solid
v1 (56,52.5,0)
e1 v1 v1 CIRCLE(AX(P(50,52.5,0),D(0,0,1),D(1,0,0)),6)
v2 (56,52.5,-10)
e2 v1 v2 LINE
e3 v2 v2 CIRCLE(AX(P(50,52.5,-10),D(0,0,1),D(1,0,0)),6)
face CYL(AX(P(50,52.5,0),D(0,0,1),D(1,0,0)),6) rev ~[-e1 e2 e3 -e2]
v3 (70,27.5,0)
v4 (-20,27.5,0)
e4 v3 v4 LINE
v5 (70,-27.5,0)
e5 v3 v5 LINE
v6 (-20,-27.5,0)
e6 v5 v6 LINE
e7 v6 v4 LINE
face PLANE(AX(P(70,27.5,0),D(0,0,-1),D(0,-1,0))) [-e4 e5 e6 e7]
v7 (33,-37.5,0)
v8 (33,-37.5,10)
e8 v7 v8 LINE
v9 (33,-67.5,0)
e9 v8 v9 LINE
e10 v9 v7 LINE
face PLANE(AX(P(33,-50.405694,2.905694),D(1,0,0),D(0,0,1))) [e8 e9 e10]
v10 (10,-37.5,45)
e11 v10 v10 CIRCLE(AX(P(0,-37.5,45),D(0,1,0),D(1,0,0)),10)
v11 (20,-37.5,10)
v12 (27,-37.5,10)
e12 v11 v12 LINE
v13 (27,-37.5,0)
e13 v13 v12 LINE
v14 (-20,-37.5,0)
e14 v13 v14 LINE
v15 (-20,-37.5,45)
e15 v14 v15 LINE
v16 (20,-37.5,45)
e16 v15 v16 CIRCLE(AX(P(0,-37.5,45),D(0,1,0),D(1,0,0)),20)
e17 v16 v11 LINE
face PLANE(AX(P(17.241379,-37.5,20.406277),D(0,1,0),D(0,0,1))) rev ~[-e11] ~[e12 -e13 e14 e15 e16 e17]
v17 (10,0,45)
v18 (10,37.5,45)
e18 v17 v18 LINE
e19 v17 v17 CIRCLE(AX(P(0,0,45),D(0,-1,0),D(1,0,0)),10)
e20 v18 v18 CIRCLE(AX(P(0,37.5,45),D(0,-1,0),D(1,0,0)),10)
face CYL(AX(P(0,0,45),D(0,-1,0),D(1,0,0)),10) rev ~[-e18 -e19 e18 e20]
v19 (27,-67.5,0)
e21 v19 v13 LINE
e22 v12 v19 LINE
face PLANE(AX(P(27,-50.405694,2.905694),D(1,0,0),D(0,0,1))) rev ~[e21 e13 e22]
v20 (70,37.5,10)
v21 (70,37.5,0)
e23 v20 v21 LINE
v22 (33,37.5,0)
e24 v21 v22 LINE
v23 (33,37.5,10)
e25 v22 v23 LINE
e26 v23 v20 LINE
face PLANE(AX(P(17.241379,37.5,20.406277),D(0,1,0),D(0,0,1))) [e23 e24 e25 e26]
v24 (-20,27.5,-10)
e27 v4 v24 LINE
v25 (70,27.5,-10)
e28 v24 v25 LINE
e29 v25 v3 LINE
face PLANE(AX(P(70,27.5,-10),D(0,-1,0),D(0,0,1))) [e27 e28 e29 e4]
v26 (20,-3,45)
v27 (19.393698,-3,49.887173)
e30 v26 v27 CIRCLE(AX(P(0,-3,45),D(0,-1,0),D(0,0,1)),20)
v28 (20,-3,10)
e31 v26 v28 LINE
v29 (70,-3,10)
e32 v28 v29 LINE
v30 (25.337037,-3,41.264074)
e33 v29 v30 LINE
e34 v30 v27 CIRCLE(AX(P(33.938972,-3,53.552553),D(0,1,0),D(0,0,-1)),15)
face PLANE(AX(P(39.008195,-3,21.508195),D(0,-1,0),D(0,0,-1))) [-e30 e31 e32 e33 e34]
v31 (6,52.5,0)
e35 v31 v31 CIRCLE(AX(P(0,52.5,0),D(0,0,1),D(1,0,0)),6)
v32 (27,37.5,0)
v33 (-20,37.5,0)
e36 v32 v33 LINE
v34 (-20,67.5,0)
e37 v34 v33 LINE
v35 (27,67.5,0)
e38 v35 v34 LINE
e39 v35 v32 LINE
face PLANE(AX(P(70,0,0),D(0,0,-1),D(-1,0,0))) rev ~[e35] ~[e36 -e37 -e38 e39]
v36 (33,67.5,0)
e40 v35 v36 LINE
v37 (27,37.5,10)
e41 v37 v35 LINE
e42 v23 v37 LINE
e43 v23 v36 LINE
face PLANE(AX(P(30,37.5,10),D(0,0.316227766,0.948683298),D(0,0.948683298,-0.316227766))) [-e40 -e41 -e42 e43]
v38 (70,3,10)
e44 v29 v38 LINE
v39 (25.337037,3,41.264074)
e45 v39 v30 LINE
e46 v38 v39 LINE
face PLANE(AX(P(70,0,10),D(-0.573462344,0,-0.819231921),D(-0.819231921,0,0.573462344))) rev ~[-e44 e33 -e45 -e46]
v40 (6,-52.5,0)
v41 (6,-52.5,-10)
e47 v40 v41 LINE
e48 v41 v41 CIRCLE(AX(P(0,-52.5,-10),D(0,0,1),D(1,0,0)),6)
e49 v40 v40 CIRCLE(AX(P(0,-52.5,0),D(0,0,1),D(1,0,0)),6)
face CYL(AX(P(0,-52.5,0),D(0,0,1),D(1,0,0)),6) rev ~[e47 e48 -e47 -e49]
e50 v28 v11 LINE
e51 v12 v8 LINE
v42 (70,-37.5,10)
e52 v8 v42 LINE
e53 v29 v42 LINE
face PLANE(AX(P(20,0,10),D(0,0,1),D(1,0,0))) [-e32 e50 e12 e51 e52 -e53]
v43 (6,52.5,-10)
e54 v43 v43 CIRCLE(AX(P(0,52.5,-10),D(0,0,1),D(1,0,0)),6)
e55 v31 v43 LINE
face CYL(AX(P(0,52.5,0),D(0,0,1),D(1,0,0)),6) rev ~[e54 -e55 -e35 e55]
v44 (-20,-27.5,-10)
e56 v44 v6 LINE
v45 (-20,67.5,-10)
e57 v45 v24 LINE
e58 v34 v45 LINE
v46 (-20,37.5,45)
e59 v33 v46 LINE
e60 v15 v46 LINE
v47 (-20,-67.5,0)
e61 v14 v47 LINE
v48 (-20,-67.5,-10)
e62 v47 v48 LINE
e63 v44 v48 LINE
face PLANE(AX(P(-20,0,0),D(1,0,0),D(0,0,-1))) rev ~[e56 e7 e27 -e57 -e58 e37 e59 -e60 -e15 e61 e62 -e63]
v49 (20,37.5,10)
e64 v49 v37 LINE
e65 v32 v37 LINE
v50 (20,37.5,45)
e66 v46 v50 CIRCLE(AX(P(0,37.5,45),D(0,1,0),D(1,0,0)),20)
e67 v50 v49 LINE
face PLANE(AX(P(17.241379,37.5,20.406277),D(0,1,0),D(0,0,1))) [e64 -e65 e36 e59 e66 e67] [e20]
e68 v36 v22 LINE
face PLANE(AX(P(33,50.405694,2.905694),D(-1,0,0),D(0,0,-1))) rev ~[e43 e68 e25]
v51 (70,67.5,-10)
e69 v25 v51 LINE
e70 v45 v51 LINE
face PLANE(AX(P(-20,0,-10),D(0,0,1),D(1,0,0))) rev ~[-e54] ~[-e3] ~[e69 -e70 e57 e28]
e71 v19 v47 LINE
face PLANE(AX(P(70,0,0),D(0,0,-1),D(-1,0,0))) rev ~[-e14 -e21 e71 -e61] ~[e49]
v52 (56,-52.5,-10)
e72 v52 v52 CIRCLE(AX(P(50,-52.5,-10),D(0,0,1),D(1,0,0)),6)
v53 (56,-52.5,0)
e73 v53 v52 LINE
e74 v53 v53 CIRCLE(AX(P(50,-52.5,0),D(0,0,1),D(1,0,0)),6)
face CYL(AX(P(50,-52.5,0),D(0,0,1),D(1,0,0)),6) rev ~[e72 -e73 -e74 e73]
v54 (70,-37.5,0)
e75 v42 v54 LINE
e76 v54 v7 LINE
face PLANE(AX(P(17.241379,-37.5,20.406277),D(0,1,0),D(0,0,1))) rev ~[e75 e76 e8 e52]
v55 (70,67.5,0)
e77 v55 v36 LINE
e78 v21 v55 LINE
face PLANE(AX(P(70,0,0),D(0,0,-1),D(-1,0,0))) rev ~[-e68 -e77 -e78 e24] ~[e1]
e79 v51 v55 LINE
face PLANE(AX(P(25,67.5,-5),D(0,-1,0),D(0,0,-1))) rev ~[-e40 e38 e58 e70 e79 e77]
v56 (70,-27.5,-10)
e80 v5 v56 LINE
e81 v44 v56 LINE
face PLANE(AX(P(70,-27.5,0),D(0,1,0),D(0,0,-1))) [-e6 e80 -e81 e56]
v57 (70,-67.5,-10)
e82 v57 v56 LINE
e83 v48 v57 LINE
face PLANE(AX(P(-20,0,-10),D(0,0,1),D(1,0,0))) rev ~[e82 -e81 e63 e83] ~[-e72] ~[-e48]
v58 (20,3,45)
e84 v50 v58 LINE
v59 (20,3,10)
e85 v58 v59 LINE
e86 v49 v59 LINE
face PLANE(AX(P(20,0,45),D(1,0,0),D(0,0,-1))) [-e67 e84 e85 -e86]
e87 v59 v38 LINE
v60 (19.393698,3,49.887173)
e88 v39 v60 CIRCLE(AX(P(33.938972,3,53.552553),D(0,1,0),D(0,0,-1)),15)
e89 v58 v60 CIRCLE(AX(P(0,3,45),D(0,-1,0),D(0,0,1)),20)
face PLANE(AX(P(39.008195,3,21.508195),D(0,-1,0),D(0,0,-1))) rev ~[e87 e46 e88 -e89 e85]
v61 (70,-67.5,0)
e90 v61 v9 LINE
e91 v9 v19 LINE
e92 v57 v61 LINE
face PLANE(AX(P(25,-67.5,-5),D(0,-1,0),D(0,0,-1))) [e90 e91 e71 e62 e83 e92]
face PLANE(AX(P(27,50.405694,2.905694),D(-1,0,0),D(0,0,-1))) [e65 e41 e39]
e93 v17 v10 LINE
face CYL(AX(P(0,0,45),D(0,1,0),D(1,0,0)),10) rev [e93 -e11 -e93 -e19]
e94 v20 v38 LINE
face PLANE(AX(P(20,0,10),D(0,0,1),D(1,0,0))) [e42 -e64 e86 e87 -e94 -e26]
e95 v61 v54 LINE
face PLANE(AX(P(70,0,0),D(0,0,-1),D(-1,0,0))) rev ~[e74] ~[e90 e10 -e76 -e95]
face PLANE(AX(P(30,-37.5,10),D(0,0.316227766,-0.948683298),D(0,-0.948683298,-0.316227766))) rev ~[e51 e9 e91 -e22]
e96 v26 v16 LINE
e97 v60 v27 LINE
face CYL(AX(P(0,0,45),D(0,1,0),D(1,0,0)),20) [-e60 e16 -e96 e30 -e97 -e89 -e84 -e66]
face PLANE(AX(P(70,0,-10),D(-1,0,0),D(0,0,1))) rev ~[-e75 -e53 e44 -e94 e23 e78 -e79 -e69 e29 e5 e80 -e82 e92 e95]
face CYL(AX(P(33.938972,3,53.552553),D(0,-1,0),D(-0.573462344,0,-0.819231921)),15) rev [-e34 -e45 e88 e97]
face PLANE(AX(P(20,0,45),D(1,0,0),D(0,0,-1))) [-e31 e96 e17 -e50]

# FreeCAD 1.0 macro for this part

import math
import FreeCAD as App
import Part
import Sketcher
Q = App.Units.Quantity


def edges_at(feature, points):
    """Names of the edges that pass closest to the given points."""
    edges = feature.Shape.Edges
    near = lambda p: min(range(len(edges)), key=lambda i: edges[i].distToShape(Part.Vertex(*p))[0])
    return sorted({f"Edge{near(p) + 1}" for p in points})

doc = App.newDocument("Part")
body = doc.addObject("PartDesign::Body", "Body")

# Sketch on XZ plane
sketch1 = body.newObject("Sketcher::SketchObject", "Sketch")
sketch1.AttachmentSupport = (doc.getObject("XZ_Plane"), [""])
sketch1.MapMode = "FlatFace"
sketch1.addGeometry([
    Part.LineSegment(App.Vector(70, -10, 0), App.Vector(70, 0, 0)),
    Part.LineSegment(App.Vector(70, 0, 0), App.Vector(-20, 0, 0)),
    Part.LineSegment(App.Vector(-20, 0, 0), App.Vector(-20, -10, 0)),
    Part.LineSegment(App.Vector(-20, -10, 0), App.Vector(70, -10, 0)),
], False)
sketch1.addConstraint([
    Sketcher.Constraint("Coincident", 0, 2, 1, 1),
    Sketcher.Constraint("Coincident", 1, 2, 2, 1),
    Sketcher.Constraint("Coincident", 2, 2, 3, 1),
    Sketcher.Constraint("Coincident", 3, 2, 0, 1),
    Sketcher.Constraint("Vertical", 0),
    Sketcher.Constraint("Horizontal", 1),
    Sketcher.Constraint("Vertical", 2),
    Sketcher.Constraint("Horizontal", 3),
    Sketcher.Constraint("PointOnObject", 0, 2, -1),
    Sketcher.Constraint("DistanceX", 1, 2, 1, 1, Q("90 mm")),
    Sketcher.Constraint("DistanceY", 0, 1, 0, 2, Q("10 mm")),
    Sketcher.Constraint("DistanceX", -1, 1, 0, 2, Q("70 mm")),
])
pad1 = body.newObject("PartDesign::Pad", "Pad")
pad1.Profile = sketch1
pad1.Length = 135
pad1.Midplane = True

# Sketch on XZ plane
sketch2 = body.newObject("Sketcher::SketchObject", "Sketch001")
sketch2.AttachmentSupport = (doc.getObject("XZ_Plane"), [""])
sketch2.MapMode = "FlatFace"
sketch2.addGeometry([
    Part.LineSegment(App.Vector(70, 0, 0), App.Vector(70, 10, 0)),  # 0
    Part.LineSegment(App.Vector(70, 10, 0), App.Vector(20, 10, 0)),  # 1
    Part.LineSegment(App.Vector(20, 10, 0), App.Vector(20, 45, 0)),  # 2
    Part.ArcOfCircle(Part.Circle(App.Vector(0, 45, 0), App.Vector(0, 0, 1), 20), math.radians(0), math.radians(180)),  # 3
    Part.LineSegment(App.Vector(-20, 45, 0), App.Vector(-20, 0, 0)),  # 4
    Part.LineSegment(App.Vector(-20, 0, 0), App.Vector(70, 0, 0)),  # 5
], False)
sketch2.addConstraint([
    Sketcher.Constraint("Coincident", 0, 2, 1, 1),
    Sketcher.Constraint("Coincident", 1, 2, 2, 1),
    Sketcher.Constraint("Tangent", 2, 2, 3, 1),
    Sketcher.Constraint("Tangent", 3, 2, 4, 1),
    Sketcher.Constraint("Coincident", 4, 2, 5, 1),
    Sketcher.Constraint("Coincident", 5, 2, 0, 1),
    Sketcher.Constraint("Vertical", 0),
    Sketcher.Constraint("Horizontal", 1),
    Sketcher.Constraint("Vertical", 2),
    Sketcher.Constraint("Vertical", 4),
    Sketcher.Constraint("Horizontal", 5),
    Sketcher.Constraint("PointOnObject", 3, 3, -2),
    Sketcher.Constraint("PointOnObject", 4, 2, -1),
    Sketcher.Constraint("Radius", 3, Q("20 mm")),
    Sketcher.Constraint("DistanceX", 1, 2, 1, 1, Q("50 mm")),
    Sketcher.Constraint("DistanceY", 0, 1, 0, 2, Q("10 mm")),
    Sketcher.Constraint("DistanceY", 2, 1, 2, 2, Q("35 mm")),
])
pad2 = body.newObject("PartDesign::Pad", "Pad001")
pad2.Profile = sketch2
pad2.Length = 75
pad2.Midplane = True

# Sketch on XZ plane
sketch3 = body.newObject("Sketcher::SketchObject", "Sketch002")
sketch3.AttachmentSupport = (doc.getObject("XZ_Plane"), [""])
sketch3.MapMode = "FlatFace"
sketch3.addGeometry(Part.Circle(App.Vector(0, 45, 0), App.Vector(0, 0, 1), 10), False)
sketch3.addConstraint([
    Sketcher.Constraint("PointOnObject", 0, 3, -2),
    Sketcher.Constraint("Diameter", 0, Q("20 mm")),
    Sketcher.Constraint("DistanceY", -1, 1, 0, 3, Q("45 mm")),
])
pocket1 = body.newObject("PartDesign::Pocket", "Pocket")
pocket1.Profile = sketch3
pocket1.Length = 308.4741
pocket1.Midplane = True

# Sketch on YZ plane
sketch4 = body.newObject("Sketcher::SketchObject", "Sketch003")
sketch4.AttachmentSupport = (doc.getObject("YZ_Plane"), [""])
sketch4.MapMode = "FlatFace"
sketch4.AttachmentOffset = App.Placement(App.Vector(0, 0, 70), App.Rotation())
sketch4.addGeometry([
    Part.LineSegment(App.Vector(27.5, 0, 0), App.Vector(-27.5, 0, 0)),
    Part.LineSegment(App.Vector(-27.5, 0, 0), App.Vector(-27.5, -10, 0)),
    Part.LineSegment(App.Vector(-27.5, -10, 0), App.Vector(27.5, -10, 0)),
    Part.LineSegment(App.Vector(27.5, -10, 0), App.Vector(27.5, 0, 0)),
], False)
sketch4.addConstraint([
    Sketcher.Constraint("Coincident", 0, 2, 1, 1),
    Sketcher.Constraint("Coincident", 1, 2, 2, 1),
    Sketcher.Constraint("Coincident", 2, 2, 3, 1),
    Sketcher.Constraint("Coincident", 3, 2, 0, 1),
    Sketcher.Constraint("Horizontal", 0),
    Sketcher.Constraint("Vertical", 1),
    Sketcher.Constraint("Horizontal", 2),
    Sketcher.Constraint("Vertical", 3),
    Sketcher.Constraint("Symmetric", 0, 2, 3, 2, -1, 1),
    Sketcher.Constraint("DistanceX", 0, 2, 0, 1, Q("55 mm")),
    Sketcher.Constraint("DistanceY", 1, 2, 1, 1, Q("10 mm")),
])
pocket2 = body.newObject("PartDesign::Pocket", "Pocket001")
pocket2.Profile = sketch4
pocket2.Length = 314.3461
pocket2.Midplane = True

# Sketch on XZ plane
sketch5 = body.newObject("Sketcher::SketchObject", "Sketch004")
sketch5.AttachmentSupport = (doc.getObject("XZ_Plane"), [""])
sketch5.MapMode = "FlatFace"
sketch5.addGeometry([
    Part.LineSegment(App.Vector(20, 10, 0), App.Vector(70, 10, 0)),
    Part.LineSegment(App.Vector(70, 10, 0), App.Vector(20, 45, 0)),
    Part.LineSegment(App.Vector(20, 45, 0), App.Vector(20, 10, 0)),
], False)
sketch5.addConstraint([
    Sketcher.Constraint("Coincident", 0, 2, 1, 1),
    Sketcher.Constraint("Coincident", 1, 2, 2, 1),
    Sketcher.Constraint("Coincident", 2, 2, 0, 1),
    Sketcher.Constraint("Horizontal", 0),
    Sketcher.Constraint("Vertical", 2),
    Sketcher.Constraint("DistanceX", 0, 1, 0, 2, Q("50 mm")),
    Sketcher.Constraint("DistanceY", 2, 2, 2, 1, Q("35 mm")),
    Sketcher.Constraint("DistanceX", -1, 1, 0, 2, Q("70 mm")),
    Sketcher.Constraint("DistanceY", -1, 1, 0, 2, Q("10 mm")),
])
pad3 = body.newObject("PartDesign::Pad", "Pad002")
pad3.Profile = sketch5
pad3.Length = 6
pad3.Midplane = True

# Sketch on XY plane
sketch6 = body.newObject("Sketcher::SketchObject", "Sketch005")
sketch6.AttachmentSupport = (doc.getObject("XY_Plane"), [""])
sketch6.MapMode = "FlatFace"
sketch6.addGeometry([
    Part.Circle(App.Vector(0, -52.5, 0), App.Vector(0, 0, 1), 6),
    Part.Circle(App.Vector(50, -52.5, 0), App.Vector(0, 0, 1), 6),
    Part.Circle(App.Vector(0, 52.5, 0), App.Vector(0, 0, 1), 6),
    Part.Circle(App.Vector(50, 52.5, 0), App.Vector(0, 0, 1), 6),
], False)
sketch6.addConstraint([
    Sketcher.Constraint("Equal", 0, 1),
    Sketcher.Constraint("Equal", 1, 2),
    Sketcher.Constraint("Equal", 2, 3),
    Sketcher.Constraint("Symmetric", 0, 3, 2, 3, -1, 1),
    Sketcher.Constraint("Symmetric", 1, 3, 3, 3, -1),
    Sketcher.Constraint("PointOnObject", 0, 3, -2),
    Sketcher.Constraint("Horizontal", 0, 3, 1, 3),
    Sketcher.Constraint("Diameter", 0, Q("12 mm")),
    Sketcher.Constraint("DistanceX", -1, 1, 1, 3, Q("50 mm")),
    Sketcher.Constraint("DistanceY", 0, 3, 2, 3, Q("105 mm")),
])
pocket3 = body.newObject("PartDesign::Pocket", "Pocket002")
pocket3.Profile = sketch6
pocket3.Length = 143.6428
pocket3.Midplane = True
doc.recompute()

fillet = body.newObject("PartDesign::Fillet", "Fillet")
fillet.Base = (pocket3, edges_at(pocket3, [(20, 0, 45)]))
fillet.Radius = 15

# Sketch on YZ plane
sketch7 = body.newObject("Sketcher::SketchObject", "Sketch006")
sketch7.AttachmentSupport = (doc.getObject("YZ_Plane"), [""])
sketch7.MapMode = "FlatFace"
sketch7.AttachmentOffset = App.Placement(App.Vector(0, 0, 30), App.Rotation())
sketch7.addGeometry([
    Part.LineSegment(App.Vector(-67.5, 0, 0), App.Vector(-37.5, 0, 0)),  # 0
    Part.LineSegment(App.Vector(-37.5, 0, 0), App.Vector(-37.5, 10, 0)),  # 1
    Part.LineSegment(App.Vector(-37.5, 10, 0), App.Vector(-67.5, 0, 0)),  # 2
    Part.LineSegment(App.Vector(37.5, 10, 0), App.Vector(37.5, 0, 0)),  # 3
    Part.LineSegment(App.Vector(37.5, 0, 0), App.Vector(67.5, 0, 0)),  # 4
    Part.LineSegment(App.Vector(67.5, 0, 0), App.Vector(37.5, 10, 0)),  # 5
], False)
sketch7.addConstraint([
    Sketcher.Constraint("Coincident", 0, 2, 1, 1),
    Sketcher.Constraint("Coincident", 1, 2, 2, 1),
    Sketcher.Constraint("Coincident", 2, 2, 0, 1),
    Sketcher.Constraint("Coincident", 3, 2, 4, 1),
    Sketcher.Constraint("Coincident", 4, 2, 5, 1),
    Sketcher.Constraint("Coincident", 5, 2, 3, 1),
    Sketcher.Constraint("Horizontal", 0),
    Sketcher.Constraint("Vertical", 1),
    Sketcher.Constraint("Vertical", 3),
    Sketcher.Constraint("Horizontal", 4),
    Sketcher.Constraint("Symmetric", 0, 2, 3, 2, -1, 1),
    Sketcher.Constraint("Symmetric", 2, 2, 4, 2, -2),
    Sketcher.Constraint("Horizontal", 1, 2, 5, 2),
    Sketcher.Constraint("DistanceX", 0, 1, 0, 2, Q("30 mm")),
    Sketcher.Constraint("DistanceY", 1, 1, 1, 2, Q("10 mm")),
    Sketcher.Constraint("DistanceX", 0, 2, 3, 2, Q("75 mm")),
])
pad4 = body.newObject("PartDesign::Pad", "Pad003")
pad4.Profile = sketch7
pad4.Length = 6
pad4.Midplane = True

doc.recompute()
